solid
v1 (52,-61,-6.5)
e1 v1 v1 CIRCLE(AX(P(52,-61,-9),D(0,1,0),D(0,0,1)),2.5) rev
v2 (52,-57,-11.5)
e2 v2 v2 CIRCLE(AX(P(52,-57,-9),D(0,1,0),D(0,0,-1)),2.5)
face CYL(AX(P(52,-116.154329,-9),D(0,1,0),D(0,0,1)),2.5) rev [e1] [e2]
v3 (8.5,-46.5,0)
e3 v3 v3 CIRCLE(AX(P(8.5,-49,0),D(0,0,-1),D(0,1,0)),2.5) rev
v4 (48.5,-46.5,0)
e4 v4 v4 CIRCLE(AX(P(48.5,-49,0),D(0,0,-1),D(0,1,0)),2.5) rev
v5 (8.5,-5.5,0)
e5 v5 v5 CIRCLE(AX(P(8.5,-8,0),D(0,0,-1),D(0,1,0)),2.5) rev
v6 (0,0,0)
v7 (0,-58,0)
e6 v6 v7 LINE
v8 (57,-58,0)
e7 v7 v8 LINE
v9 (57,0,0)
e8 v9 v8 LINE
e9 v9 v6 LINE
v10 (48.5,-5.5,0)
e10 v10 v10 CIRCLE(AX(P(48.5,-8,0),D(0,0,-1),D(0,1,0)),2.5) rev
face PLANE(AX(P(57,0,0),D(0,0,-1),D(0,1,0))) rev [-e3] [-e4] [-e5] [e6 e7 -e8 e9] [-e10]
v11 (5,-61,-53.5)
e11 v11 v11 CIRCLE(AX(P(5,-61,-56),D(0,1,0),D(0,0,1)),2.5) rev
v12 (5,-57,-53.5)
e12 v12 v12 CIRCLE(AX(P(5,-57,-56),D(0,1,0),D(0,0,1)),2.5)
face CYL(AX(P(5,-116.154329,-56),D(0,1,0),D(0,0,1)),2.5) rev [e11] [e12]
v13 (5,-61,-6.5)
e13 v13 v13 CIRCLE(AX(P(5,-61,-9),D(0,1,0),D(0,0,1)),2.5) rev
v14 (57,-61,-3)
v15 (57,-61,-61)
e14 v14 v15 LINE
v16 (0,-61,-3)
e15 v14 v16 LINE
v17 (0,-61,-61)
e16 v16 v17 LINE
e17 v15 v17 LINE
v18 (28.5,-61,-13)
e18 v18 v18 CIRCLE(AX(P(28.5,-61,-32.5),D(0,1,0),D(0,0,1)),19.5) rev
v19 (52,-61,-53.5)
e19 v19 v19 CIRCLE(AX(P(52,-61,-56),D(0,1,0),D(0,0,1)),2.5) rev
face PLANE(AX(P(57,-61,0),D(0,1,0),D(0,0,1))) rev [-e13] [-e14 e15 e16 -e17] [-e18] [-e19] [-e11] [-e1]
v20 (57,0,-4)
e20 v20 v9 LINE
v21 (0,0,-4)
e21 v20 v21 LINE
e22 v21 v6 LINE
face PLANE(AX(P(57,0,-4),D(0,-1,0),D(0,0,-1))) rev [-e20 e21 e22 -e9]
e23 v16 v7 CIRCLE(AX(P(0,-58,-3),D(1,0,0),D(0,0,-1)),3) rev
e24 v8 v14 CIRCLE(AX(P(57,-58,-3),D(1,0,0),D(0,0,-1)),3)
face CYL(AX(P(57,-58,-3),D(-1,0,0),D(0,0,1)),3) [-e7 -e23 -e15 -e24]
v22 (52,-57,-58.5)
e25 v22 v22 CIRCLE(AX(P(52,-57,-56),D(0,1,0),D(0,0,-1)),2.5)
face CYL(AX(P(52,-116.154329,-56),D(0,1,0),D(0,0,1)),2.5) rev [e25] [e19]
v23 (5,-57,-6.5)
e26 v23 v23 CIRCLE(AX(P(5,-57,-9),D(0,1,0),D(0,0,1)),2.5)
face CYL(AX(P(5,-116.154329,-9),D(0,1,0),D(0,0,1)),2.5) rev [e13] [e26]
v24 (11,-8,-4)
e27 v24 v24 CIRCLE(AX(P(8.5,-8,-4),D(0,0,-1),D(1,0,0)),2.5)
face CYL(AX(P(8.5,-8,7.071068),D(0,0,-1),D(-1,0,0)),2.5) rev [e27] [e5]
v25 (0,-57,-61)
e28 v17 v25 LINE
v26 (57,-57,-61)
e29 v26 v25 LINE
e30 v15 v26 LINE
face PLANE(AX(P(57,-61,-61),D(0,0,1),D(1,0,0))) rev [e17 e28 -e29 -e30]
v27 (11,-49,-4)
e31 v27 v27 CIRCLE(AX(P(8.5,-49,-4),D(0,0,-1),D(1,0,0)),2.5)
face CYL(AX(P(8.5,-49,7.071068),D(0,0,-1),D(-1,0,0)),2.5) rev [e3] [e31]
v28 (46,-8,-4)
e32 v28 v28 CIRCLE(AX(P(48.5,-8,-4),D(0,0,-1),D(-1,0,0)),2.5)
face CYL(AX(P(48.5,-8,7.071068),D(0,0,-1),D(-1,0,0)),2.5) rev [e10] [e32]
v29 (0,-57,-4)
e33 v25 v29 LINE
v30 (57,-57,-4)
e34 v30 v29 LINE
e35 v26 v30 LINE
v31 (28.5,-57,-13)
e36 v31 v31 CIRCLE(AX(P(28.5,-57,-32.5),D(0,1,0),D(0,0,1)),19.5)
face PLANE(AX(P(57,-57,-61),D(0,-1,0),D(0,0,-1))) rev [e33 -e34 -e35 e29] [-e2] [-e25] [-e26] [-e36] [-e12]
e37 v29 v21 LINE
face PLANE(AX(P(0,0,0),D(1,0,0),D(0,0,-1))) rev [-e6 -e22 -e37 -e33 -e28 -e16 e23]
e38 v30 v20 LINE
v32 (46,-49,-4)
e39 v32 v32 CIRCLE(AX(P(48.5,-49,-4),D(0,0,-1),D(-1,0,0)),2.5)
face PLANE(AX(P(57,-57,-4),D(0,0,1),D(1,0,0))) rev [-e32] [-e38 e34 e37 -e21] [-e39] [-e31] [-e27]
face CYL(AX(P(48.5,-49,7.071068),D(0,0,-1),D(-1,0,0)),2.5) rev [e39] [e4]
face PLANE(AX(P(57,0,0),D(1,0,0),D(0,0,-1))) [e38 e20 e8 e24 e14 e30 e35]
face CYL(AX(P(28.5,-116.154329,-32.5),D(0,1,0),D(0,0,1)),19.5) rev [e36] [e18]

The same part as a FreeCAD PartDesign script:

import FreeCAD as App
import Part
import Sketcher

V = App.Vector
Q = App.Units.Quantity


def edges_at(feature, points):
    """Names of the edges that pass closest to the given points."""
    edges = feature.Shape.Edges
    near = lambda p: min(range(len(edges)), key=lambda i: edges[i].distToShape(Part.Vertex(*p))[0])
    return sorted({f"Edge{near(p) + 1}" for p in points})

doc = App.newDocument("Part")
body = doc.addObject("PartDesign::Body", "Body")

# Sketch on YZ plane
sketch1 = body.newObject("Sketcher::SketchObject", "Sketch")
sketch1.AttachmentSupport = (doc.getObject("YZ_Plane"), [""])
sketch1.MapMode = "FlatFace"
sketch1.addGeometry([
    Part.LineSegment(V(0, 0, 0), V(-61, 0, 0)),  # 0
    Part.LineSegment(V(-61, 0, 0), V(-61, -61, 0)),  # 1
    Part.LineSegment(V(-61, -61, 0), V(-57, -61, 0)),  # 2
    Part.LineSegment(V(-57, -61, 0), V(-57, -4, 0)),  # 3
    Part.LineSegment(V(-57, -4, 0), V(0, -4, 0)),  # 4
    Part.LineSegment(V(0, -4, 0), V(0, 0, 0)),  # 5
], False)
sketch1.addConstraint([
    Sketcher.Constraint("Coincident", 0, 2, 1, 1),
    Sketcher.Constraint("Coincident", 1, 2, 2, 1),
    Sketcher.Constraint("Coincident", 2, 2, 3, 1),
    Sketcher.Constraint("Coincident", 3, 2, 4, 1),
    Sketcher.Constraint("Coincident", 4, 2, 5, 1),
    Sketcher.Constraint("Coincident", 5, 2, 0, 1),
    Sketcher.Constraint("Horizontal", 0),
    Sketcher.Constraint("Vertical", 1),
    Sketcher.Constraint("Horizontal", 2),
    Sketcher.Constraint("Vertical", 3),
    Sketcher.Constraint("Horizontal", 4),
    Sketcher.Constraint("Vertical", 5),
    Sketcher.Constraint("Coincident", 5, 2, -1, 1),
    Sketcher.Constraint("Equal", 0, 1),
    Sketcher.Constraint("Equal", 4, 3),
    Sketcher.Constraint("DistanceX", 0, 2, 0, 1, Q("61 mm")),
    Sketcher.Constraint("DistanceX", 2, 1, 2, 2, Q("4 mm")),
])
pad1 = body.newObject("PartDesign::Pad", "Pad")
pad1.Profile = sketch1
pad1.Length = 57
doc.recompute()

fillet = body.newObject("PartDesign::Fillet", "Fillet")
fillet.Base = (pad1, edges_at(pad1, [(28.5, -61, 0)]))
fillet.Radius = 3

# Sketch on XZ plane
sketch2 = body.newObject("Sketcher::SketchObject", "Sketch001")
sketch2.AttachmentSupport = (doc.getObject("XZ_Plane"), [""])
sketch2.MapMode = "FlatFace"
sketch2.AttachmentOffset = App.Placement(V(0, 0, 57), App.Rotation())
sketch2.addGeometry([
    Part.Circle(V(5, -56, 0), V(0, 0, 1), 2.5),  # 0
    Part.Circle(V(5, -9, 0), V(0, 0, 1), 2.5),  # 1
    Part.Circle(V(52, -9, 0), V(0, 0, 1), 2.5),  # 2
    Part.Circle(V(52, -56, 0), V(0, 0, 1), 2.5),  # 3
    Part.Circle(V(28.5, -32.5, 0), V(0, 0, 1), 19.5),  # 4
], False)
sketch2.addConstraint([
    Sketcher.Constraint("Equal", 0, 1),
    Sketcher.Constraint("Equal", 1, 2),
    Sketcher.Constraint("Equal", 2, 3),
    Sketcher.Constraint("Horizontal", 1, 3, 2, 3),
    Sketcher.Constraint("Horizontal", 0, 3, 3, 3),
    Sketcher.Constraint("Vertical", 0, 3, 1, 3),
    Sketcher.Constraint("Vertical", 2, 3, 3, 3),
    Sketcher.Constraint("Diameter", 0, Q("5 mm")),
    Sketcher.Constraint("Diameter", 4, Q("39 mm")),
    Sketcher.Constraint("DistanceX", -1, 1, 0, 3, Q("5 mm")),
    Sketcher.Constraint("DistanceY", 0, 3, -1, 1, Q("56 mm")),
    Sketcher.Constraint("DistanceY", 1, 3, -1, 1, Q("9 mm")),
    Sketcher.Constraint("DistanceX", -1, 1, 2, 3, Q("52 mm")),
    Sketcher.Constraint("DistanceX", -1, 1, 4, 3, Q("28.5 mm")),
    Sketcher.Constraint("DistanceY", 4, 3, -1, 1, Q("32.5 mm")),
])
pocket1 = body.newObject("PartDesign::Pocket", "Pocket")
pocket1.Profile = sketch2
pocket1.Length = 4
pocket1.Reversed = True

# Sketch on XY plane
sketch3 = body.newObject("Sketcher::SketchObject", "Sketch002")
sketch3.AttachmentSupport = (doc.getObject("XY_Plane"), [""])
sketch3.MapMode = "FlatFace"
sketch3.AttachmentOffset = App.Placement(V(0, 0, -4), App.Rotation())
sketch3.addGeometry([
    Part.Circle(V(48.5, -8, 0), V(0, 0, 1), 2.5),
    Part.Circle(V(48.5, -49, 0), V(0, 0, 1), 2.5),
    Part.Circle(V(8.5, -49, 0), V(0, 0, 1), 2.5),
    Part.Circle(V(8.5, -8, 0), V(0, 0, 1), 2.5),
], False)
sketch3.addConstraint([
    Sketcher.Constraint("Equal", 0, 1),
    Sketcher.Constraint("Equal", 1, 2),
    Sketcher.Constraint("Equal", 2, 3),
    Sketcher.Constraint("Horizontal", 1, 3, 2, 3),
    Sketcher.Constraint("Horizontal", 0, 3, 3, 3),
    Sketcher.Constraint("Vertical", 0, 3, 1, 3),
    Sketcher.Constraint("Vertical", 2, 3, 3, 3),
    Sketcher.Constraint("Diameter", 0, Q("5 mm")),
    Sketcher.Constraint("DistanceY", 0, 3, -1, 1, Q("8 mm")),
    Sketcher.Constraint("DistanceY", 1, 3, -1, 1, Q("49 mm")),
    Sketcher.Constraint("DistanceX", 2, 3, 1, 3, Q("40 mm")),
    Sketcher.Constraint("DistanceX", -1, 1, 0, 3, Q("48.5 mm")),
])
pocket2 = body.newObject("PartDesign::Pocket", "Pocket001")
pocket2.Profile = sketch3
pocket2.Length = 4
pocket2.Reversed = True

doc.recompute()
